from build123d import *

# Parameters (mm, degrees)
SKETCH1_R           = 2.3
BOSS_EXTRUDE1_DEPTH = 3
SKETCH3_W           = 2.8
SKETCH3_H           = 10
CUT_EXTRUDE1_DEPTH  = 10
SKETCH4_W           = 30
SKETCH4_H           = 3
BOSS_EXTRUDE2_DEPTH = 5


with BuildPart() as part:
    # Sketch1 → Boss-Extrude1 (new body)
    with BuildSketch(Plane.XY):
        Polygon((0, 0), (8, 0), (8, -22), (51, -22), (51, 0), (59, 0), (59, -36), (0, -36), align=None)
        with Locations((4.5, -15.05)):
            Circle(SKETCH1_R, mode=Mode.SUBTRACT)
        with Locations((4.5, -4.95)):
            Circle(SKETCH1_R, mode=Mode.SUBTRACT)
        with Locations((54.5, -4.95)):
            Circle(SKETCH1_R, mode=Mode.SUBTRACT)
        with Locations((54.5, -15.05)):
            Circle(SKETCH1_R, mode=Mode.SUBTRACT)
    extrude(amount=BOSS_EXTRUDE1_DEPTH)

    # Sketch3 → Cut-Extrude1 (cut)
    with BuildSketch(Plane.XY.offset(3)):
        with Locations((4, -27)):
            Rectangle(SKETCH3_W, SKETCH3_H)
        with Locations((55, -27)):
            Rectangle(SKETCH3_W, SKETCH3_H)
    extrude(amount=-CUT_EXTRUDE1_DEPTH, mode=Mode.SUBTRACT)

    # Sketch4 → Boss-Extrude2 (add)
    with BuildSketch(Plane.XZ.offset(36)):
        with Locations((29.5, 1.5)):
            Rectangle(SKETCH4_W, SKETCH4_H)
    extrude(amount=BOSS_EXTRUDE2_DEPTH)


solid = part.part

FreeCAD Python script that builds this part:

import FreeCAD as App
import Part
import Sketcher
from FreeCAD import Vector
Q = App.Units.Quantity


def add_polygon(sketch, points):
    """Adds a closed chain of lines whose ends are joined by coincident constraints."""
    first, n = sketch.GeometryCount, len(points)
    for a, b in zip(points, points[1:] + points[:1]):
        sketch.addGeometry(Part.LineSegment(App.Vector(*a, 0), App.Vector(*b, 0)), False)
    for i in range(n):
        sketch.addConstraint(Sketcher.Constraint("Coincident", first + i, 2, first + (i + 1) % n, 1))

doc = App.newDocument("Part")
body = doc.addObject("PartDesign::Body", "Body")

# Sketch on XY plane
sketch1 = body.newObject("Sketcher::SketchObject", "Sketch")
sketch1.AttachmentSupport = (doc.getObject("XY_Plane"), [""])
sketch1.MapMode = "FlatFace"
add_polygon(sketch1, [(8, 0), (0, 0), (0, -36), (59, -36), (59, 0), (51, 0), (51, -22), (8, -22)])  # lines 0-7
sketch1.addGeometry(Part.Circle(Vector(54.5, -15.1, 0), Vector(0, 0, 1), 2.3), False)  # 8
sketch1.addGeometry(Part.Circle(Vector(4.5, -15.1, 0), Vector(0, 0, 1), 2.3), False)  # 9
sketch1.addGeometry(Part.Circle(Vector(54.5, -5, 0), Vector(0, 0, 1), 2.3), False)  # 10
sketch1.addGeometry(Part.Circle(Vector(4.5, -5, 0), Vector(0, 0, 1), 2.3), False)  # 11
sketch1.addConstraint(Sketcher.Constraint("Horizontal", 0))
sketch1.addConstraint(Sketcher.Constraint("Vertical", 1))
sketch1.addConstraint(Sketcher.Constraint("Horizontal", 2))
sketch1.addConstraint(Sketcher.Constraint("Vertical", 3))
sketch1.addConstraint(Sketcher.Constraint("Horizontal", 4))
sketch1.addConstraint(Sketcher.Constraint("Vertical", 5))
sketch1.addConstraint(Sketcher.Constraint("Horizontal", 6))
sketch1.addConstraint(Sketcher.Constraint("Vertical", 7))
sketch1.addConstraint(Sketcher.Constraint("Coincident", 0, 2, -1, 1))
sketch1.addConstraint(Sketcher.Constraint("Equal", 8, 9))
sketch1.addConstraint(Sketcher.Constraint("Equal", 9, 10))
sketch1.addConstraint(Sketcher.Constraint("Equal", 10, 11))
sketch1.addConstraint(Sketcher.Constraint("PointOnObject", 3, 2, -1))
sketch1.addConstraint(Sketcher.Constraint("Horizontal", 8, 3, 9, 3))
sketch1.addConstraint(Sketcher.Constraint("Horizontal", 10, 3, 11, 3))
sketch1.addConstraint(Sketcher.Constraint("Vertical", 8, 3, 10, 3))
sketch1.addConstraint(Sketcher.Constraint("Vertical", 9, 3, 11, 3))
sketch1.addConstraint(Sketcher.Constraint("Equal", 0, 4))
sketch1.addConstraint(Sketcher.Constraint("Diameter", 8, Q("4.6 mm")))
sketch1.addConstraint(Sketcher.Constraint("DistanceX", 0, 2, 0, 1, Q("8 mm")))
sketch1.addConstraint(Sketcher.Constraint("DistanceX", 2, 1, 2, 2, Q("59 mm")))
sketch1.addConstraint(Sketcher.Constraint("DistanceY", 1, 2, 1, 1, Q("36 mm")))
sketch1.addConstraint(Sketcher.Constraint("DistanceY", 5, 2, 5, 1, Q("22 mm")))
sketch1.addConstraint(Sketcher.Constraint("DistanceX", 9, 3, 8, 3, Q("50 mm")))
sketch1.addConstraint(Sketcher.Constraint("DistanceX", -1, 1, 8, 3, Q("54.5 mm")))
sketch1.addConstraint(Sketcher.Constraint("DistanceY", 8, 3, 10, 3, Q("10.1 mm")))
sketch1.addConstraint(Sketcher.Constraint("DistanceY", 8, 3, -1, 1, Q("15.05 mm")))
pad1 = body.newObject("PartDesign::Pad", "Pad")
pad1.Profile = sketch1
pad1.Length = 3

# Sketch on XY plane
sketch2 = body.newObject("Sketcher::SketchObject", "Sketch001")
sketch2.AttachmentSupport = (doc.getObject("XY_Plane"), [""])
sketch2.MapMode = "FlatFace"
sketch2.AttachmentOffset = App.Placement(Vector(0, 0, 3), App.Rotation())
add_polygon(sketch2, [(2.6, -22), (2.6, -32), (5.4, -32), (5.4, -22)])  # lines 0-3
add_polygon(sketch2, [(53.6, -22), (53.6, -32), (56.4, -32), (56.4, -22)])  # lines 4-7
sketch2.addConstraint(Sketcher.Constraint("Vertical", 0))
sketch2.addConstraint(Sketcher.Constraint("Horizontal", 1))
sketch2.addConstraint(Sketcher.Constraint("Vertical", 2))
sketch2.addConstraint(Sketcher.Constraint("Horizontal", 3))
sketch2.addConstraint(Sketcher.Constraint("Vertical", 4))
sketch2.addConstraint(Sketcher.Constraint("Horizontal", 5))
sketch2.addConstraint(Sketcher.Constraint("Vertical", 6))
sketch2.addConstraint(Sketcher.Constraint("Horizontal", 7))
sketch2.addConstraint(Sketcher.Constraint("Horizontal", 1, 2, 4, 2))
sketch2.addConstraint(Sketcher.Constraint("Horizontal", 3, 2, 6, 2))
sketch2.addConstraint(Sketcher.Constraint("Equal", 3, 5))
sketch2.addConstraint(Sketcher.Constraint("DistanceY", 0, 2, 0, 1, Q("10 mm")))
sketch2.addConstraint(Sketcher.Constraint("DistanceX", 1, 1, 1, 2, Q("2.8 mm")))
sketch2.addConstraint(Sketcher.Constraint("DistanceY", 0, 2, -1, 1, Q("32 mm")))
sketch2.addConstraint(Sketcher.Constraint("DistanceX", 0, 2, 4, 2, Q("51 mm")))
sketch2.addConstraint(Sketcher.Constraint("DistanceX", -1, 1, 0, 2, Q("2.6 mm")))
pocket1 = body.newObject("PartDesign::Pocket", "Pocket")
pocket1.Profile = sketch2
pocket1.Length = 10

# Sketch on XZ plane
sketch3 = body.newObject("Sketcher::SketchObject", "Sketch002")
sketch3.AttachmentSupport = (doc.getObject("XZ_Plane"), [""])
sketch3.MapMode = "FlatFace"
sketch3.AttachmentOffset = App.Placement(Vector(0, 0, 36), App.Rotation())
add_polygon(sketch3, [(14.5, 3), (14.5, 0), (44.5, 0), (44.5, 3)])  # lines 0-3
sketch3.addConstraint(Sketcher.Constraint("Vertical", 0))
sketch3.addConstraint(Sketcher.Constraint("Horizontal", 1))
sketch3.addConstraint(Sketcher.Constraint("Vertical", 2))
sketch3.addConstraint(Sketcher.Constraint("Horizontal", 3))
sketch3.addConstraint(Sketcher.Constraint("PointOnObject", 0, 2, -1))
sketch3.addConstraint(Sketcher.Constraint("DistanceX", 1, 1, 1, 2, Q("30 mm")))
sketch3.addConstraint(Sketcher.Constraint("DistanceY", 0, 2, 0, 1, Q("3 mm")))
sketch3.addConstraint(Sketcher.Constraint("DistanceX", -1, 1, 0, 2, Q("14.5 mm")))
pad2 = body.newObject("PartDesign::Pad", "Pad001")
pad2.Profile = sketch3
pad2.Length = 5

doc.recompute()
